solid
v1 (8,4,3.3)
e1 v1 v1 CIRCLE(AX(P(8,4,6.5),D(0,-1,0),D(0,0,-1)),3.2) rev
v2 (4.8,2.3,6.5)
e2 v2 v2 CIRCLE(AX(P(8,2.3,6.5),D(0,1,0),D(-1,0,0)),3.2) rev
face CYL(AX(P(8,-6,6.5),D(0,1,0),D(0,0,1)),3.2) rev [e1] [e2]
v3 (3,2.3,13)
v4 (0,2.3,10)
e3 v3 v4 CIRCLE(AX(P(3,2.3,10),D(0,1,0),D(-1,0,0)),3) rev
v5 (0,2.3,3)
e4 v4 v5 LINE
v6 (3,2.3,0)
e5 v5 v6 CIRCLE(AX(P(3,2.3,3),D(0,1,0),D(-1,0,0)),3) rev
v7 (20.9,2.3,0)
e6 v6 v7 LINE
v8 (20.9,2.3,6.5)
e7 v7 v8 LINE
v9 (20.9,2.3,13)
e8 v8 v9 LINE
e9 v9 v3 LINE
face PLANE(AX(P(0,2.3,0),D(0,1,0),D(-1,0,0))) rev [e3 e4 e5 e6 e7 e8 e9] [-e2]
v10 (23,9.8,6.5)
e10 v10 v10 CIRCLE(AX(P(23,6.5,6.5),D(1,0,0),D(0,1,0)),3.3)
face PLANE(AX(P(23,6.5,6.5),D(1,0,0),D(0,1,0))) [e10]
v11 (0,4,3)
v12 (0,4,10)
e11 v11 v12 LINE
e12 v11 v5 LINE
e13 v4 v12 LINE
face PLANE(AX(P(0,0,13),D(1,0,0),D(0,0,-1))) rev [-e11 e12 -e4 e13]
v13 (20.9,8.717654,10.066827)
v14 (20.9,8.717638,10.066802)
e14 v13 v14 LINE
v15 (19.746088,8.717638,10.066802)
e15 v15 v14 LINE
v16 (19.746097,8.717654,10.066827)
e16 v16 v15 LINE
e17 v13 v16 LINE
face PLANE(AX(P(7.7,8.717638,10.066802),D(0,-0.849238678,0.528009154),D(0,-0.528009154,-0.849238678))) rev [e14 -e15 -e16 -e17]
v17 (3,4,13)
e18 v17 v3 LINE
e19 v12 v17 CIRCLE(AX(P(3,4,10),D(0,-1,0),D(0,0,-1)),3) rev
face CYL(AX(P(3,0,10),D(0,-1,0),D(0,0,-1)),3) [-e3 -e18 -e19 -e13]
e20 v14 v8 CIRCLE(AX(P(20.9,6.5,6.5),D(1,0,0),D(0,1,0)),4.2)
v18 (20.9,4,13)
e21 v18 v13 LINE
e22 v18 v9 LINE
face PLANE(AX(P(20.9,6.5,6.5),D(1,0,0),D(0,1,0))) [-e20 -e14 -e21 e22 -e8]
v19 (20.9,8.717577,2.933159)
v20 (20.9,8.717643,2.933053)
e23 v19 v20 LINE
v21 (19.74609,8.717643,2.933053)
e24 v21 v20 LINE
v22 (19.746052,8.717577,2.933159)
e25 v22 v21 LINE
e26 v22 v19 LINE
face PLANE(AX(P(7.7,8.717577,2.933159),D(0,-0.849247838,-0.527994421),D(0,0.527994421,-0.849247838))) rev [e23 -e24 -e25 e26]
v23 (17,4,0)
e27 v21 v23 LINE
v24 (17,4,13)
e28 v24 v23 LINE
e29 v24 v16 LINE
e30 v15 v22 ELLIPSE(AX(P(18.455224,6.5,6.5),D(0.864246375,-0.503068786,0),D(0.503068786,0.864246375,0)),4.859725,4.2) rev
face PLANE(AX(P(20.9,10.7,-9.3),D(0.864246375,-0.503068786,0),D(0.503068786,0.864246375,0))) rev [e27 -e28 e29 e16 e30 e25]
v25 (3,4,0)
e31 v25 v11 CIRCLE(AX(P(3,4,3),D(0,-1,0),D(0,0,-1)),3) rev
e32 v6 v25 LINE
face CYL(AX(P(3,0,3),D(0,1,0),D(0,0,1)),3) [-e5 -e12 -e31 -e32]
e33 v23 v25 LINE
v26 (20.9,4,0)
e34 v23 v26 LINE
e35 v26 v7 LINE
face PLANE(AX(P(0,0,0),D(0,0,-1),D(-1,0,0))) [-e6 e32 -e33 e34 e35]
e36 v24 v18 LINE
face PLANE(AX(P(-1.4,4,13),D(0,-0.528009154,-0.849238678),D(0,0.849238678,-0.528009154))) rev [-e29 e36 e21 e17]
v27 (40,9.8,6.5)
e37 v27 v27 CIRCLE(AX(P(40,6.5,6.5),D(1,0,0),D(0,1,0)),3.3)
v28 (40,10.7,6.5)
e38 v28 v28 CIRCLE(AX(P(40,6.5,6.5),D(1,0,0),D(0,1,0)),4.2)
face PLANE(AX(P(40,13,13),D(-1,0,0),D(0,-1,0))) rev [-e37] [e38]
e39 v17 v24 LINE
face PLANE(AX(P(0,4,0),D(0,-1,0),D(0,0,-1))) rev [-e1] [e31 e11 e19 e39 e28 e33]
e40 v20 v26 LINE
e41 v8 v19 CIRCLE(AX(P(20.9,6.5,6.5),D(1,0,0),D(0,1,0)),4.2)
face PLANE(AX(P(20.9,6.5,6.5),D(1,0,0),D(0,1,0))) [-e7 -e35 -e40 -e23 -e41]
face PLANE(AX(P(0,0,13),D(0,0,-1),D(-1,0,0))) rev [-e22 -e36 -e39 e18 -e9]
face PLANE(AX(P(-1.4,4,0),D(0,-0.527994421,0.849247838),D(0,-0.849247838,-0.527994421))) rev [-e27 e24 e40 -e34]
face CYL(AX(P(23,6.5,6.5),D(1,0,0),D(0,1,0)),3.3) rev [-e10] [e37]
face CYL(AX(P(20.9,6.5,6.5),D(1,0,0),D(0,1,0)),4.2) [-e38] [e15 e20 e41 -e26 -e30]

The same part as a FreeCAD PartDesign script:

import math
import FreeCAD as App
import Part
import Sketcher

V = App.Vector


def edges_at(feature, points):
    """Names of the edges that pass closest to the given points."""
    edges = feature.Shape.Edges
    near = lambda p: min(range(len(edges)), key=lambda i: edges[i].distToShape(Part.Vertex(*p))[0])
    return sorted({f"Edge{near(p) + 1}" for p in points})


def add_polygon(sketch, points):
    """Adds a closed chain of lines whose ends are joined by coincident constraints."""
    first, n = sketch.GeometryCount, len(points)
    for a, b in zip(points, points[1:] + points[:1]):
        sketch.addGeometry(Part.LineSegment(App.Vector(*a, 0), App.Vector(*b, 0)), False)
    for i in range(n):
        sketch.addConstraint(Sketcher.Constraint("Coincident", first + i, 2, first + (i + 1) % n, 1))

doc = App.newDocument("Part")
body = doc.addObject("PartDesign::Body", "Body")

# Sketch on XY plane
sketch1 = body.newObject("Sketcher::SketchObject", "Sketch")
sketch1.AttachmentSupport = (doc.getObject("XY_Plane"), [""])
sketch1.MapMode = "FlatFace"
add_polygon(sketch1, [(0, 13), (0, 0), (40, 0), (40, 13)])  # lines 0-3
sketch1.addConstraint([
    Sketcher.Constraint("Vertical", 0),
    Sketcher.Constraint("Horizontal", 1),
    Sketcher.Constraint("Vertical", 2),
    Sketcher.Constraint("Horizontal", 3),
    Sketcher.Constraint("Coincident", 0, 2, -1, 1),
    Sketcher.Constraint("DistanceX", 1, 1, 1, 2, 40.0),
    Sketcher.Constraint("DistanceY", 0, 2, 0, 1, 13.0),
])
pad1 = body.newObject("PartDesign::Pad", "Pad")
pad1.Profile = sketch1
pad1.Length = 13

# Sketch on YZ plane
sketch2 = body.newObject("Sketcher::SketchObject", "Sketch001")
sketch2.AttachmentSupport = (doc.getObject("YZ_Plane"), [""])
sketch2.MapMode = "FlatFace"
sketch2.AttachmentOffset = App.Placement(V(0, 0, 40), App.Rotation())
sketch2.addGeometry(Part.Circle(V(6.5, 6.5, 0), V(0, 0, 1), 3.3), False)
sketch2.addConstraint([
    Sketcher.Constraint("Diameter", 0, 6.6),
    Sketcher.Constraint("DistanceX", -1, 1, 0, 3, 6.5),
    Sketcher.Constraint("DistanceY", -1, 1, 0, 3, 6.5),
])
pocket1 = body.newObject("PartDesign::Pocket", "Pocket")
pocket1.Profile = sketch2
pocket1.Length = 17

# Sketch on XZ plane
sketch3 = body.newObject("Sketcher::SketchObject", "Sketch002")
sketch3.AttachmentSupport = (doc.getObject("XZ_Plane"), [""])
sketch3.MapMode = "FlatFace"
sketch3.AttachmentOffset = App.Placement(V(0, 0, -13), App.Rotation())
sketch3.addGeometry(Part.Circle(V(8, 6.5, 0), V(0, 0, 1), 3.2), False)
sketch3.addConstraint([
    Sketcher.Constraint("Diameter", 0, 6.4),
    Sketcher.Constraint("DistanceX", -1, 1, 0, 3, 8.0),
    Sketcher.Constraint("DistanceY", -1, 1, 0, 3, 6.5),
])
pocket2 = body.newObject("PartDesign::Pocket", "Pocket001")
pocket2.Profile = sketch3
pocket2.Length = 19
pocket2.Reversed = True

# Sketch on XZ plane
sketch4 = body.newObject("Sketcher::SketchObject", "Sketch003")
sketch4.AttachmentSupport = (doc.getObject("XZ_Plane"), [""])
sketch4.MapMode = "FlatFace"
sketch4.AttachmentOffset = App.Placement(V(0, 0, -13), App.Rotation())
add_polygon(sketch4, [(0, 0), (0, 13), (17, 13), (17, 0)])  # lines 0-3
sketch4.addConstraint([
    Sketcher.Constraint("Vertical", 0),
    Sketcher.Constraint("Horizontal", 1),
    Sketcher.Constraint("Vertical", 2),
    Sketcher.Constraint("Horizontal", 3),
    Sketcher.Constraint("Coincident", 3, 2, -1, 1),
    Sketcher.Constraint("DistanceX", 1, 1, 1, 2, 17.0),
    Sketcher.Constraint("DistanceY", 0, 1, 0, 2, 13.0),
])
pocket3 = body.newObject("PartDesign::Pocket", "Pocket002")
pocket3.Profile = sketch4
pocket3.Length = 9
pocket3.Reversed = True

# Sketch on YZ plane
sketch5 = body.newObject("Sketcher::SketchObject", "Sketch004")
sketch5.AttachmentSupport = (doc.getObject("YZ_Plane"), [""])
sketch5.MapMode = "FlatFace"
sketch5.AttachmentOffset = App.Placement(V(0, 0, 40), App.Rotation())
add_polygon(sketch5, [(18.4, 18.4), (-5.4, 18.4), (-5.4, -5.4), (18.4, -5.4)])  # lines 0-3
sketch5.addGeometry(Part.Circle(V(6.5, 6.5, 0), V(0, 0, 1), 4.2), False)  # 4
sketch5.addConstraint([
    Sketcher.Constraint("Horizontal", 0),
    Sketcher.Constraint("Vertical", 1),
    Sketcher.Constraint("Horizontal", 2),
    Sketcher.Constraint("Vertical", 3),
    Sketcher.Constraint("Equal", 2, 1),
    Sketcher.Constraint("Diameter", 4, 8.4),
    Sketcher.Constraint("DistanceX", -1, 1, 4, 3, 6.5),
    Sketcher.Constraint("DistanceY", -1, 1, 4, 3, 6.5),
    Sketcher.Constraint("DistanceX", 0, 2, 0, 1, 23.804),
    Sketcher.Constraint("DistanceX", 0, 2, -1, 1, 5.402),
    Sketcher.Constraint("DistanceY", -1, 1, 0, 2, 18.402),
])
pocket4 = body.newObject("PartDesign::Pocket", "Pocket003")
pocket4.Profile = sketch5
pocket4.Length = 19.1

# Sketch on XZ plane
sketch6 = body.newObject("Sketcher::SketchObject", "Sketch005")
sketch6.AttachmentSupport = (doc.getObject("XZ_Plane"), [""])
sketch6.MapMode = "FlatFace"
sketch6.AttachmentOffset = App.Placement(V(0, 0, -13), App.Rotation())
add_polygon(sketch6, [(17, 0), (17, 13), (20.9, 13), (20.9, 0)])  # lines 0-3
sketch6.addConstraint([
    Sketcher.Constraint("Vertical", 0),
    Sketcher.Constraint("Horizontal", 1),
    Sketcher.Constraint("Vertical", 2),
    Sketcher.Constraint("Horizontal", 3),
    Sketcher.Constraint("PointOnObject", 2, 2, -1),
    Sketcher.Constraint("DistanceY", 0, 1, 0, 2, 13.0),
    Sketcher.Constraint("DistanceX", 1, 1, 1, 2, 3.9),
    Sketcher.Constraint("DistanceX", -1, 1, 0, 2, 17.0),
])
pocket5 = body.newObject("PartDesign::Pocket", "Pocket004")
pocket5.Profile = sketch6
pocket5.Length = 2.3
pocket5.Reversed = True

# Sketch on XZ plane
sketch7 = body.newObject("Sketcher::SketchObject", "Sketch006")
sketch7.AttachmentSupport = (doc.getObject("XZ_Plane"), [""])
sketch7.MapMode = "FlatFace"
add_polygon(sketch7, [(0, 13), (0, 0), (21, 0), (21, 13)])  # lines 0-3
sketch7.addConstraint([
    Sketcher.Constraint("Vertical", 0),
    Sketcher.Constraint("Horizontal", 1),
    Sketcher.Constraint("Vertical", 2),
    Sketcher.Constraint("Horizontal", 3),
    Sketcher.Constraint("Coincident", 0, 2, -1, 1),
    Sketcher.Constraint("DistanceY", 0, 2, 0, 1, 13.0),
    Sketcher.Constraint("DistanceX", 1, 1, 1, 2, 20.9),
])
pocket6 = body.newObject("PartDesign::Pocket", "Pocket005")
pocket6.Profile = sketch7
pocket6.Length = 2.3

# Sketch on XY plane
sketch8 = body.newObject("Sketcher::SketchObject", "Sketch007")
sketch8.AttachmentSupport = (doc.getObject("XY_Plane"), [""])
sketch8.MapMode = "FlatFace"
sketch8.AttachmentOffset = App.Placement(V(0, 0, 13), App.Rotation())
add_polygon(sketch8, [(17, 10.7), (17, 4), (20.9, 10.7)])  # lines 0-2
sketch8.addConstraint([
    Sketcher.Constraint("Vertical", 0),
    Sketcher.Constraint("Horizontal", 2),
    Sketcher.Constraint("DistanceX", 2, 2, 2, 1, 3.9),
    Sketcher.Constraint("DistanceY", 0, 2, 0, 1, 6.7),
    Sketcher.Constraint("DistanceX", -1, 1, 0, 2, 17.0),
    Sketcher.Constraint("DistanceY", -1, 1, 0, 2, 4.0),
])
pocket7 = body.newObject("PartDesign::Pocket", "Pocket006")
pocket7.Profile = sketch8
pocket7.Length = 22.3

# Sketch on YZ plane
sketch9 = body.newObject("Sketcher::SketchObject", "Sketch008")
sketch9.AttachmentSupport = (doc.getObject("YZ_Plane"), [""])
sketch9.MapMode = "FlatFace"
sketch9.AttachmentOffset = App.Placement(V(0, 0, 20.9), App.Rotation())
add_polygon(sketch9, [(10.7, 13), (4, 13), (10.7, 8.8)])  # lines 0-2
sketch9.addConstraint([
    Sketcher.Constraint("Horizontal", 0),
    Sketcher.Constraint("Vertical", 2),
    Sketcher.Constraint("DistanceX", 0, 2, 0, 1, 6.7),
    Sketcher.Constraint("DistanceX", -1, 1, 0, 2, 4.0),
    Sketcher.Constraint("DistanceY", -1, 1, 0, 2, 13.0),
    Sketcher.Constraint("Distance", 1, 7.889419),
])
pocket8 = body.newObject("PartDesign::Pocket", "Pocket007")
pocket8.Profile = sketch9
pocket8.Length = 22.3

# Sketch on YZ plane
sketch10 = body.newObject("Sketcher::SketchObject", "Sketch009")
sketch10.AttachmentSupport = (doc.getObject("YZ_Plane"), [""])
sketch10.MapMode = "FlatFace"
sketch10.AttachmentOffset = App.Placement(V(0, 0, 20.9), App.Rotation())
add_polygon(sketch10, [(4, 0), (10.7, 0), (10.7, 4.2)])  # lines 0-2
sketch10.addConstraint([
    Sketcher.Constraint("Horizontal", 0),
    Sketcher.Constraint("Vertical", 1),
    Sketcher.Constraint("PointOnObject", 0, 2, -1),
    Sketcher.Constraint("DistanceX", 0, 1, 0, 2, 6.7),
    Sketcher.Constraint("DistanceX", -1, 1, 2, 2, 4.0),
    Sketcher.Constraint("DistanceY", 1, 1, 1, 2, 4.165524),
])
pocket9 = body.newObject("PartDesign::Pocket", "Pocket008")
pocket9.Profile = sketch10
pocket9.Length = 22.3

# Sketch on YZ plane
sketch11 = body.newObject("Sketcher::SketchObject", "Sketch010")
sketch11.AttachmentSupport = (doc.getObject("YZ_Plane"), [""])
sketch11.MapMode = "FlatFace"
sketch11.AttachmentOffset = App.Placement(V(0, 0, 40), App.Rotation())
sketch11.addGeometry([
    Part.LineSegment(V(9.4, 11.1, 0), V(8.7, 10.1, 0)),
    Part.ArcOfCircle(Part.Circle(V(6.5, 6.5, 0), V(0, 0, 1), 4.2), math.radians(-58), math.radians(58)),
    Part.LineSegment(V(8.7, 2.9, 0), V(9.4, 1.9, 0)),
    Part.ArcOfCircle(Part.Circle(V(6.5, 6.5, 0), V(0, 0, 1), 5.5), math.radians(-58), math.radians(58)),
], False)
sketch11.addConstraint([
    Sketcher.Constraint("Coincident", 0, 2, 1, 2),
    Sketcher.Constraint("Coincident", 1, 1, 2, 1),
    Sketcher.Constraint("Coincident", 2, 2, 3, 1),
    Sketcher.Constraint("Coincident", 3, 2, 0, 1),
    Sketcher.Constraint("Coincident", 3, 3, 1, 3),
    Sketcher.Constraint("Radius", 1, 4.2),
    Sketcher.Constraint("DistanceX", -1, 1, 1, 3, 6.5),
    Sketcher.Constraint("DistanceY", -1, 1, 1, 3, 6.5),
    Sketcher.Constraint("Radius", 3, 5.458185),
    Sketcher.Constraint("DistanceY", -1, 1, 3, 2, 11.135301),
    Sketcher.Constraint("DistanceY", 0, 2, 3, 2, 1.068499),
    Sketcher.Constraint("DistanceY", -1, 1, 1, 1, 2.933159),
    Sketcher.Constraint("DistanceX", -1, 1, 2, 2, 9.381891),
])
pocket10 = body.newObject("PartDesign::Pocket", "Pocket009")
pocket10.Profile = sketch11
pocket10.Length = 32.3
doc.recompute()

fillet = body.newObject("PartDesign::Fillet", "Fillet")
fillet.Base = (pocket10, edges_at(pocket10, [(0, 3.15, 0), (0, 3.15, 13)]))
fillet.Radius = 3

doc.recompute()
